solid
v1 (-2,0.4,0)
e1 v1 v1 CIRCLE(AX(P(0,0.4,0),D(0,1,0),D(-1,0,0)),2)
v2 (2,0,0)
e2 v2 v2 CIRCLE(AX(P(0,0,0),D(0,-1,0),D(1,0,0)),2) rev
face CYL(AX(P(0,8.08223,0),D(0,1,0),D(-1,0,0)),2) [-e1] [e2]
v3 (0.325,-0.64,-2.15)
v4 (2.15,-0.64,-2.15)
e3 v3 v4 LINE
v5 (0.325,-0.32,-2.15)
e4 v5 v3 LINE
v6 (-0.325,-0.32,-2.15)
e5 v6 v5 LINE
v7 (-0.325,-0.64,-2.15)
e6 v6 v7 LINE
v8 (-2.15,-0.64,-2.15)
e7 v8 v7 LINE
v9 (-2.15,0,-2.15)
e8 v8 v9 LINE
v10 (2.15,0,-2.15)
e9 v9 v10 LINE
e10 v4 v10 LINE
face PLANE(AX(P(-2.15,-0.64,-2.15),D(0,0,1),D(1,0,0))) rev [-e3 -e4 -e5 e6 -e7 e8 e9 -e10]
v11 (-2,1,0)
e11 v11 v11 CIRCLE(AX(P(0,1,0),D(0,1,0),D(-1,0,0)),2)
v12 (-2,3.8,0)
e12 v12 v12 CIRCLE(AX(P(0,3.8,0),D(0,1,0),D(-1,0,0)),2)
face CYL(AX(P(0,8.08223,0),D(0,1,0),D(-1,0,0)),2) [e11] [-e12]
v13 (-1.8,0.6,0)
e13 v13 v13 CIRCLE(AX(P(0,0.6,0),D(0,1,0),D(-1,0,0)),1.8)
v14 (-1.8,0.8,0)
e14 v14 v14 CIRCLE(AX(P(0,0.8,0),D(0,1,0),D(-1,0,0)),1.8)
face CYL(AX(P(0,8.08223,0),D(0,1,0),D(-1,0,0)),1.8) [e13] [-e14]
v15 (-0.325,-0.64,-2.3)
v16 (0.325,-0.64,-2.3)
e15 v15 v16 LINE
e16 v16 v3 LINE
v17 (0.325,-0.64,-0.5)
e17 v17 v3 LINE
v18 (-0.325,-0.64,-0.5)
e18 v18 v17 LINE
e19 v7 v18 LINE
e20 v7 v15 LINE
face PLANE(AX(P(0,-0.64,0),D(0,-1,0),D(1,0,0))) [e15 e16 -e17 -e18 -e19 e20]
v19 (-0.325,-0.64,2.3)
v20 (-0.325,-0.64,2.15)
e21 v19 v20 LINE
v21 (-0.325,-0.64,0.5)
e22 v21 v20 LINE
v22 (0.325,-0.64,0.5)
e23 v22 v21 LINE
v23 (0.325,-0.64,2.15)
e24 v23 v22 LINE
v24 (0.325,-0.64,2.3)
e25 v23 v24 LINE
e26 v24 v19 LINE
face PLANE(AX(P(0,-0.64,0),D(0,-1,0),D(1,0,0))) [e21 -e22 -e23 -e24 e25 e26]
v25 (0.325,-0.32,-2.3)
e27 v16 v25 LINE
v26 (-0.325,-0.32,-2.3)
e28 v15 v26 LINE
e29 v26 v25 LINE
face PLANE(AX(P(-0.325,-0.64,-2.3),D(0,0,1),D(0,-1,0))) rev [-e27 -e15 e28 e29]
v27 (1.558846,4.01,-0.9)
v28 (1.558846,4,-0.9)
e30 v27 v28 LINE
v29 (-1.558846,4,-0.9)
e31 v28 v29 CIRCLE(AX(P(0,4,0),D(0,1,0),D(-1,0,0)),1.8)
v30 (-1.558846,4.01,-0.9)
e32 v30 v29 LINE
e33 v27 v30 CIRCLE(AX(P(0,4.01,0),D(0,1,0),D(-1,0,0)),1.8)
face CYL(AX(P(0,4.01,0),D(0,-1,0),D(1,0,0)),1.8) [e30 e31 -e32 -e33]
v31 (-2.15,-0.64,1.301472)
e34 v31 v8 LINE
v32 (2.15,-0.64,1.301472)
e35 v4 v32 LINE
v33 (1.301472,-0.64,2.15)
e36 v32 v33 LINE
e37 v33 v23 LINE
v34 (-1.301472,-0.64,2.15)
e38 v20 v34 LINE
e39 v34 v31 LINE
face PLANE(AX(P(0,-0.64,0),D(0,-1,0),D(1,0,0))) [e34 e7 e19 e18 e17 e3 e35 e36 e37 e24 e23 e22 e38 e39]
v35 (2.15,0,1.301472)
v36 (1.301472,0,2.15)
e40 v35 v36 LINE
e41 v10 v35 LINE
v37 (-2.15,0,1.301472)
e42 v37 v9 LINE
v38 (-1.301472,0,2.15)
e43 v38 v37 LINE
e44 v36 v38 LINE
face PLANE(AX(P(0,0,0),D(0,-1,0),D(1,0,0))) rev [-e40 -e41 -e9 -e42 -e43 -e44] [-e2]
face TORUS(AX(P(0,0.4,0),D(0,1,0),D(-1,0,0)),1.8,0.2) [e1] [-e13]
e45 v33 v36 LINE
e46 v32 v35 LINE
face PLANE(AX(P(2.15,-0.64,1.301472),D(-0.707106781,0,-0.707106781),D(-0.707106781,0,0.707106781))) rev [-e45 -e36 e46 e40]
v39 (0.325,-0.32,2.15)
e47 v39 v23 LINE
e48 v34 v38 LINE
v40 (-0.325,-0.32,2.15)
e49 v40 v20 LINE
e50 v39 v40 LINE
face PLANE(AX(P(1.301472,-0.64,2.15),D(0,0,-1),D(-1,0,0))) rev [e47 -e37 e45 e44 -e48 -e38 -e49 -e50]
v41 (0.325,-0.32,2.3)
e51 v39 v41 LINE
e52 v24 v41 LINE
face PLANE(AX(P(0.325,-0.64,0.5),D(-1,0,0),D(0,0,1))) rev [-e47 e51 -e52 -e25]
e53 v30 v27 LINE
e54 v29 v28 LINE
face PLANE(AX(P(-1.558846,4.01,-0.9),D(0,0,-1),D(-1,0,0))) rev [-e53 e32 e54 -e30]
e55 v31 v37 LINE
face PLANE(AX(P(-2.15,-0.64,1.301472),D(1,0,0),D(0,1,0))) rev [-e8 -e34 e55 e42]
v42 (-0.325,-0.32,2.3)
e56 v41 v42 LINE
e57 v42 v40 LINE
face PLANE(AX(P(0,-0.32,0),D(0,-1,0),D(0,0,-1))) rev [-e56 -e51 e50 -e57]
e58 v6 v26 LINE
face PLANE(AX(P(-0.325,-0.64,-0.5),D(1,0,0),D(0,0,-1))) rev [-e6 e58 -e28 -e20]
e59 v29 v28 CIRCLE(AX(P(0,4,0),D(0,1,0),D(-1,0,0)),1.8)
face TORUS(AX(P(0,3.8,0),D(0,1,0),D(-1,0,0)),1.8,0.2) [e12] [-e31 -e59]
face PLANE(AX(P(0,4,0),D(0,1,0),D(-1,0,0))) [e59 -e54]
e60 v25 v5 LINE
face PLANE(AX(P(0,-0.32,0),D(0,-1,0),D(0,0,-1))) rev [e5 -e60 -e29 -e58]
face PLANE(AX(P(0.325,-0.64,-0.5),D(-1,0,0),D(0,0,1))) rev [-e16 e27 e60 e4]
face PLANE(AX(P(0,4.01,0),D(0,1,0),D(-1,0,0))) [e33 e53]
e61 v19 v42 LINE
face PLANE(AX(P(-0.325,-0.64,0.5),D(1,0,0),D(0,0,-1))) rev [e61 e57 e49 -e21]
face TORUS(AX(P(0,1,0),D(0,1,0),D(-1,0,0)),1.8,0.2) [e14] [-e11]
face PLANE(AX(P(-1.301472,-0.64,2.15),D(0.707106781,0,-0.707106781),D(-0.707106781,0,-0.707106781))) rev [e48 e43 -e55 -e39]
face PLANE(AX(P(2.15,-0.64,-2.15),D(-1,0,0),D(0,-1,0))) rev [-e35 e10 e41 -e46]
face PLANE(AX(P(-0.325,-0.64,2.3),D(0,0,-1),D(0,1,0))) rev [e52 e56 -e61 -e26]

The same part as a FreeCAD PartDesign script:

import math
import FreeCAD as App
import Part
import Sketcher


def add_polygon(sketch, points):
    """Adds a closed chain of lines whose ends are joined by coincident constraints."""
    first, n = sketch.GeometryCount, len(points)
    for a, b in zip(points, points[1:] + points[:1]):
        sketch.addGeometry(Part.LineSegment(App.Vector(*a, 0), App.Vector(*b, 0)), False)
    for i in range(n):
        sketch.addConstraint(Sketcher.Constraint("Coincident", first + i, 2, first + (i + 1) % n, 1))

doc = App.newDocument("Part")
body = doc.addObject("PartDesign::Body", "Body")

sketch1 = body.newObject("Sketcher::SketchObject", "Sketch")
sketch1.AttachmentSupport = (doc.getObject("XY_Plane"), [""])
sketch1.MapMode = "FlatFace"
sketch1.addGeometry(Part.LineSegment(App.Vector(0, 4, 0), App.Vector(-1.8, 4, 0)), False)
sketch1.addGeometry(Part.ArcOfCircle(Part.Circle(App.Vector(-1.8, 3.8, 0), App.Vector(0, 0, 1), 0.2), math.radians(90), math.radians(180)), False)
sketch1.addGeometry(Part.LineSegment(App.Vector(-2, 3.8, 0), App.Vector(-2, 1, 0)), False)
sketch1.addGeometry(Part.ArcOfCircle(Part.Circle(App.Vector(-1.8, 1, 0), App.Vector(0, 0, 1), 0.2), math.radians(-180), math.radians(-90)), False)
sketch1.addGeometry(Part.LineSegment(App.Vector(-1.8, 0.8, 0), App.Vector(-1.8, 0.6, 0)), False)
sketch1.addGeometry(Part.ArcOfCircle(Part.Circle(App.Vector(-1.8, 0.4, 0), App.Vector(0, 0, 1), 0.2), math.radians(90), math.radians(180)), False)
sketch1.addGeometry(Part.LineSegment(App.Vector(-2, 0.4, 0), App.Vector(-2, 0, 0)), False)
sketch1.addGeometry(Part.LineSegment(App.Vector(-2, 0, 0), App.Vector(0, 0, 0)), False)
sketch1.addGeometry(Part.LineSegment(App.Vector(0, 0, 0), App.Vector(0, 4, 0)), False)
sketch1.addConstraint(Sketcher.Constraint("Tangent", 0, 2, 1, 1))
sketch1.addConstraint(Sketcher.Constraint("Tangent", 1, 2, 2, 1))
sketch1.addConstraint(Sketcher.Constraint("Tangent", 2, 2, 3, 1))
sketch1.addConstraint(Sketcher.Constraint("Coincident", 3, 2, 4, 1))
sketch1.addConstraint(Sketcher.Constraint("Coincident", 4, 2, 5, 1))
sketch1.addConstraint(Sketcher.Constraint("Tangent", 5, 2, 6, 1))
sketch1.addConstraint(Sketcher.Constraint("Coincident", 6, 2, 7, 1))
sketch1.addConstraint(Sketcher.Constraint("Coincident", 7, 2, 8, 1))
sketch1.addConstraint(Sketcher.Constraint("Coincident", 8, 2, 0, 1))
sketch1.addConstraint(Sketcher.Constraint("Horizontal", 0))
sketch1.addConstraint(Sketcher.Constraint("Vertical", 2))
sketch1.addConstraint(Sketcher.Constraint("Vertical", 4))
sketch1.addConstraint(Sketcher.Constraint("Vertical", 6))
sketch1.addConstraint(Sketcher.Constraint("Horizontal", 7))
sketch1.addConstraint(Sketcher.Constraint("Vertical", 8))
sketch1.addConstraint(Sketcher.Constraint("Coincident", 7, 2, -1, 1))
sketch1.addConstraint(Sketcher.Constraint("Equal", 1, 3))
sketch1.addConstraint(Sketcher.Constraint("Equal", 3, 5))
sketch1.addConstraint(Sketcher.Constraint("Vertical", 3, 3, 5, 3))
sketch1.addConstraint(Sketcher.Constraint("Vertical", 0, 2, 3, 2))
sketch1.addConstraint(Sketcher.Constraint("Radius", 1, 0.2))
sketch1.addConstraint(Sketcher.Constraint("DistanceX", 7, 1, 7, 2, 2.0))
sketch1.addConstraint(Sketcher.Constraint("DistanceY", 8, 1, 8, 2, 4.0))
sketch1.addConstraint(Sketcher.Constraint("DistanceY", 2, 2, 2, 1, 2.8))
sketch1.addConstraint(Sketcher.Constraint("DistanceY", 4, 2, 4, 1, 0.2))
revolution = body.newObject("PartDesign::Revolution", "Revolution")
revolution.Profile = sketch1
revolution.ReferenceAxis = (sketch1, ["V_Axis"])
revolution.Angle = 360

sketch2 = body.newObject("Sketcher::SketchObject", "Sketch001")
sketch2.AttachmentSupport = (doc.getObject("XZ_Plane"), [""])
sketch2.MapMode = "FlatFace"
sketch2.AttachmentOffset = App.Placement(App.Vector(0, 0, -4), App.Rotation())
sketch2.addGeometry(Part.LineSegment(App.Vector(-1.6, -0.9, 0), App.Vector(1.6, -0.9, 0)), False)
sketch2.addGeometry(Part.ArcOfCircle(Part.Circle(App.Vector(0, 0, 0), App.Vector(0, 0, 1), 1.8), math.radians(-150), math.radians(-30)), False)
sketch2.addConstraint(Sketcher.Constraint("Coincident", 0, 1, 1, 1))
sketch2.addConstraint(Sketcher.Constraint("Coincident", 1, 2, 0, 2))
sketch2.addConstraint(Sketcher.Constraint("Horizontal", 0))
sketch2.addConstraint(Sketcher.Constraint("Coincident", 1, 3, -1, 1))
sketch2.addConstraint(Sketcher.Constraint("Radius", 1, 1.8))
sketch2.addConstraint(Sketcher.Constraint("DistanceY", 0, 1, -1, 1, 0.9))
pad1 = body.newObject("PartDesign::Pad", "Pad")
pad1.Profile = sketch2
pad1.Length = 0.01
pad1.Reversed = True

sketch3 = body.newObject("Sketcher::SketchObject", "Sketch002")
sketch3.AttachmentSupport = (doc.getObject("XZ_Plane"), [""])
sketch3.MapMode = "FlatFace"
add_polygon(sketch3, [(-1.3, 2.1), (-2.1, 1.3), (-2.1, -2.1), (2.1, -2.1), (2.1, 1.3), (1.3, 2.1)])
sketch3.addConstraint(Sketcher.Constraint("Vertical", 1))
sketch3.addConstraint(Sketcher.Constraint("Horizontal", 2))
sketch3.addConstraint(Sketcher.Constraint("Vertical", 3))
sketch3.addConstraint(Sketcher.Constraint("Horizontal", 5))
sketch3.addConstraint(Sketcher.Constraint("Symmetric", 0, 2, 3, 2, -2))
sketch3.addConstraint(Sketcher.Constraint("Perpendicular", 0, 4))
sketch3.addConstraint(Sketcher.Constraint("Equal", 0, 4))
sketch3.addConstraint(Sketcher.Constraint("DistanceX", 2, 1, 2, 2, 4.3))
sketch3.addConstraint(Sketcher.Constraint("Distance", 0, 1.2))
sketch3.addConstraint(Sketcher.Constraint("DistanceY", 2, 2, 4, 2, 4.3))
sketch3.addConstraint(Sketcher.Constraint("DistanceY", 1, 2, -1, 1, 2.15))
pad2 = body.newObject("PartDesign::Pad", "Pad001")
pad2.Profile = sketch3
pad2.Length = 0.64

sketch4 = body.newObject("Sketcher::SketchObject", "Sketch003")
sketch4.AttachmentSupport = (doc.getObject("XZ_Plane"), [""])
sketch4.MapMode = "FlatFace"
sketch4.AttachmentOffset = App.Placement(App.Vector(0, 0, 0.64), App.Rotation())
add_polygon(sketch4, [(-0.3, -0.5), (-0.3, -2.1), (0.3, -2.1), (0.3, -0.5)])
add_polygon(sketch4, [(-0.3, 0.5), (0.3, 0.5), (0.3, 2.1), (-0.3, 2.1)])
sketch4.addConstraint(Sketcher.Constraint("Vertical", 0))
sketch4.addConstraint(Sketcher.Constraint("Horizontal", 1))
sketch4.addConstraint(Sketcher.Constraint("Vertical", 2))
sketch4.addConstraint(Sketcher.Constraint("Horizontal", 3))
sketch4.addConstraint(Sketcher.Constraint("Horizontal", 4))
sketch4.addConstraint(Sketcher.Constraint("Vertical", 5))
sketch4.addConstraint(Sketcher.Constraint("Horizontal", 6))
sketch4.addConstraint(Sketcher.Constraint("Vertical", 7))
sketch4.addConstraint(Sketcher.Constraint("Symmetric", 3, 2, 4, 2, -1, 1))
sketch4.addConstraint(Sketcher.Constraint("Symmetric", 1, 2, 6, 2, -1, 1))
sketch4.addConstraint(Sketcher.Constraint("Vertical", 2, 2, 4, 2))
sketch4.addConstraint(Sketcher.Constraint("DistanceY", 2, 2, 4, 2, 1.0))
sketch4.addConstraint(Sketcher.Constraint("DistanceX", 1, 1, 1, 2, 0.65))
sketch4.addConstraint(Sketcher.Constraint("DistanceY", 0, 2, 0, 1, 1.65))
pocket1 = body.newObject("PartDesign::Pocket", "Pocket")
pocket1.Profile = sketch4
pocket1.Length = 0.32

sketch5 = body.newObject("Sketcher::SketchObject", "Sketch004")
sketch5.AttachmentSupport = (doc.getObject("XZ_Plane"), [""])
sketch5.MapMode = "FlatFace"
sketch5.AttachmentOffset = App.Placement(App.Vector(0, 0, 0.32), App.Rotation())
add_polygon(sketch5, [(-0.3, -0.5), (-0.3, -2.3), (0.3, -2.3), (0.3, -0.5)])
add_polygon(sketch5, [(-0.3, 2.3), (-0.3, 0.5), (0.3, 0.5), (0.3, 2.3)])
sketch5.addConstraint(Sketcher.Constraint("Vertical", 0))
sketch5.addConstraint(Sketcher.Constraint("Horizontal", 1))
sketch5.addConstraint(Sketcher.Constraint("Vertical", 2))
sketch5.addConstraint(Sketcher.Constraint("Horizontal", 3))
sketch5.addConstraint(Sketcher.Constraint("Vertical", 4))
sketch5.addConstraint(Sketcher.Constraint("Horizontal", 5))
sketch5.addConstraint(Sketcher.Constraint("Vertical", 6))
sketch5.addConstraint(Sketcher.Constraint("Horizontal", 7))
sketch5.addConstraint(Sketcher.Constraint("Symmetric", 2, 2, 4, 2, -1, 1))
sketch5.addConstraint(Sketcher.Constraint("Symmetric", 0, 2, 6, 2, -1, 1))
sketch5.addConstraint(Sketcher.Constraint("Vertical", 3, 2, 4, 2))
sketch5.addConstraint(Sketcher.Constraint("DistanceY", 0, 2, 0, 1, 1.8))
sketch5.addConstraint(Sketcher.Constraint("DistanceY", 3, 2, 4, 2, 1.0))
sketch5.addConstraint(Sketcher.Constraint("DistanceX", 1, 1, 1, 2, 0.65))
pad3 = body.newObject("PartDesign::Pad", "Pad002")
pad3.Profile = sketch5
pad3.Length = 0.32

doc.recompute()
